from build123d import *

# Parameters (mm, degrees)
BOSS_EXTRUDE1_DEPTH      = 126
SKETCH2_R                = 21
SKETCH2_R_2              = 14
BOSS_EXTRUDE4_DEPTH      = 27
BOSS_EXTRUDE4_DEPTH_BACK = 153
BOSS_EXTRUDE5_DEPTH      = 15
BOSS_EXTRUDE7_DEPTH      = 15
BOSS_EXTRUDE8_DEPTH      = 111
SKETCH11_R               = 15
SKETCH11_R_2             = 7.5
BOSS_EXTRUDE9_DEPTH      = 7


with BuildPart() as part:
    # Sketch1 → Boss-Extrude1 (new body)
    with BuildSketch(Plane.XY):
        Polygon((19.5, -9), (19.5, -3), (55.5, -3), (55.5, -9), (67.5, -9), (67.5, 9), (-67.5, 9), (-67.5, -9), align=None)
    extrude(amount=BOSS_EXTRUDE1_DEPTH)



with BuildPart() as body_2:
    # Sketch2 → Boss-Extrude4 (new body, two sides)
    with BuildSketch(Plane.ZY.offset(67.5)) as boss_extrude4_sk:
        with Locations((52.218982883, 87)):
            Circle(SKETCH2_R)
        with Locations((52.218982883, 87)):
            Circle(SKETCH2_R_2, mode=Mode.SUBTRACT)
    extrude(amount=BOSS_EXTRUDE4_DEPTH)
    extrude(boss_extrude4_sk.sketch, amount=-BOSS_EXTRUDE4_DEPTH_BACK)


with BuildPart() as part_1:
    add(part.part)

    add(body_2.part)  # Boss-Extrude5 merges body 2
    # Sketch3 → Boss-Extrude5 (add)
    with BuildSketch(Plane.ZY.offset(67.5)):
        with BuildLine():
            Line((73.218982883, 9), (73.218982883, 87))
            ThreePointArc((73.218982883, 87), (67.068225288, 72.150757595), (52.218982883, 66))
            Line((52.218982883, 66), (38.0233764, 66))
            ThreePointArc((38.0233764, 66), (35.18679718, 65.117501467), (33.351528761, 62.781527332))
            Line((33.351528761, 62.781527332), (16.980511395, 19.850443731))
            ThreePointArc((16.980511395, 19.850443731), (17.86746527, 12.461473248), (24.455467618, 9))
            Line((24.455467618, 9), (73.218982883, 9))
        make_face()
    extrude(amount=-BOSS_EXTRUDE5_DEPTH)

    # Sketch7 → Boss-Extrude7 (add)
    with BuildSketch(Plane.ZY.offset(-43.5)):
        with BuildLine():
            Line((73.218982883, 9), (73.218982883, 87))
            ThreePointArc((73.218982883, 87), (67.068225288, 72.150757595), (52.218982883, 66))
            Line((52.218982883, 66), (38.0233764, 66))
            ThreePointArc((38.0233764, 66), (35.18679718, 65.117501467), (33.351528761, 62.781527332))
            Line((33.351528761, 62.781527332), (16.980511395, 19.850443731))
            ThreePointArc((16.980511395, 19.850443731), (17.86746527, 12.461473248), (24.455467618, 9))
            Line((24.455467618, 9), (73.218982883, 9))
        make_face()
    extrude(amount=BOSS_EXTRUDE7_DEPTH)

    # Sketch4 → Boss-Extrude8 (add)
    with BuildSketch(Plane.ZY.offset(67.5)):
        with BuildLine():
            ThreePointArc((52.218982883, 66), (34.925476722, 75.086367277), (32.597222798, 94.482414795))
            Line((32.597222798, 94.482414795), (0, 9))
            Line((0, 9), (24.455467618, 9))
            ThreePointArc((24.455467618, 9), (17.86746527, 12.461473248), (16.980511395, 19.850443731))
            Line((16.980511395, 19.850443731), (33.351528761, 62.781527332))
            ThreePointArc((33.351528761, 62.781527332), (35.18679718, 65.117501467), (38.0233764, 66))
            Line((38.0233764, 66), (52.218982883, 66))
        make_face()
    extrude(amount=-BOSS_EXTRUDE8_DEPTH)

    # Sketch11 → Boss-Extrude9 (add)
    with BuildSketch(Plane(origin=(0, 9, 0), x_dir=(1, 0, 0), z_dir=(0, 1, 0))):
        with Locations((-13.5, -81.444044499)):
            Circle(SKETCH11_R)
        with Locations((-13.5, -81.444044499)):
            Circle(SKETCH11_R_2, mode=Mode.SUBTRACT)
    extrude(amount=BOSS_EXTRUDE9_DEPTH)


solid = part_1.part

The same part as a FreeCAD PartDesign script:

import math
import FreeCAD as App
import Part
import Sketcher
Q = App.Units.Quantity


def add_polygon(sketch, points):
    """Adds a closed chain of lines whose ends are joined by coincident constraints."""
    first, n = sketch.GeometryCount, len(points)
    for a, b in zip(points, points[1:] + points[:1]):
        sketch.addGeometry(Part.LineSegment(App.Vector(*a, 0), App.Vector(*b, 0)), False)
    for i in range(n):
        sketch.addConstraint(Sketcher.Constraint("Coincident", first + i, 2, first + (i + 1) % n, 1))

doc = App.newDocument("Part")
body = doc.addObject("PartDesign::Body", "Body")

sketch1 = doc.addObject("Sketcher::SketchObject", "Sketch")
body.addObject(sketch1)
sketch1.AttachmentSupport = (doc.XY_Plane, [""])
sketch1.MapMode = "FlatFace"
add_polygon(sketch1, [(20, -9), (20, -3), (56, -3), (56, -9), (68, -9), (68, 9), (-68, 9), (-68, -9)])
sketch1.addConstraint([
    Sketcher.Constraint("Vertical", 0),
    Sketcher.Constraint("Horizontal", 1),
    Sketcher.Constraint("Vertical", 2),
    Sketcher.Constraint("Horizontal", 3),
    Sketcher.Constraint("Vertical", 4),
    Sketcher.Constraint("Horizontal", 5),
    Sketcher.Constraint("Vertical", 6),
    Sketcher.Constraint("Horizontal", 7),
    Sketcher.Constraint("Symmetric", 3, 2, 5, 2, -1, 1),
    Sketcher.Constraint("Horizontal", 3, 2, 6, 2),
    Sketcher.Constraint("DistanceX", 1, 1, 1, 2, Q("36 mm")),
    Sketcher.Constraint("DistanceX", 3, 1, 3, 2, Q("12 mm")),
    Sketcher.Constraint("DistanceX", 5, 2, 5, 1, Q("135 mm")),
    Sketcher.Constraint("DistanceY", 0, 1, 0, 2, Q("6 mm")),
    Sketcher.Constraint("DistanceY", 4, 1, 4, 2, Q("18 mm")),
])
pad1 = doc.addObject("PartDesign::Pad", "Pad")
body.addObject(pad1)
pad1.Profile = sketch1
pad1.Length = 126
body2 = doc.addObject("PartDesign::Body", "Body001")

sketch2 = doc.addObject("Sketcher::SketchObject", "Sketch001")
body2.addObject(sketch2)
sketch2.AttachmentSupport = (doc.getObject("YZ_Plane001"), [""])
sketch2.MapMode = "FlatFace"
sketch2.AttachmentOffset = App.Placement(App.Vector(0, 0, -67.5), App.Rotation())
sketch2.addGeometry([
    Part.Circle(App.Vector(87, 52, 0), App.Vector(0, 0, 1), 21),
    Part.Circle(App.Vector(87, 52, 0), App.Vector(0, 0, 1), 14),
], False)
sketch2.addConstraint([
    Sketcher.Constraint("Coincident", 1, 3, 0, 3),
    Sketcher.Constraint("Diameter", 0, Q("42 mm")),
    Sketcher.Constraint("Diameter", 1, Q("28 mm")),
    Sketcher.Constraint("DistanceX", -1, 1, 0, 3, Q("87 mm")),
    Sketcher.Constraint("DistanceY", -1, 1, 0, 3, Q("52.218983 mm")),
])
pad2 = doc.addObject("PartDesign::Pad", "Pad001")
body2.addObject(pad2)
pad2.Profile = sketch2
pad2.Type = "TwoLengths"
pad2.Length = 27
pad2.Length2 = 153
pad2.Reversed = True
body.AllowCompound = True
doc.recompute()

boolean = doc.addObject("PartDesign::Boolean", "Boolean")
body.addObject(boolean)
boolean.Type = "Fuse"
boolean.addObjects([body2])

sketch3 = doc.addObject("Sketcher::SketchObject", "Sketch002")
body.addObject(sketch3)
sketch3.AttachmentSupport = (doc.YZ_Plane, [""])
sketch3.MapMode = "FlatFace"
sketch3.AttachmentOffset = App.Placement(App.Vector(0, 0, -67.5), App.Rotation())
sketch3.addGeometry([
    Part.LineSegment(App.Vector(9, 73.2, 0), App.Vector(87, 73.2, 0)),
    Part.ArcOfCircle(Part.Circle(App.Vector(87, 52.2, 0), App.Vector(0, 0, 1), 21), math.radians(90), math.radians(180)),
    Part.LineSegment(App.Vector(66, 52.2, 0), App.Vector(66, 38, 0)),
    Part.ArcOfCircle(Part.Circle(App.Vector(61, 38, 0), App.Vector(0, 0, 1), 5), math.radians(-69), math.radians(0)),
    Part.LineSegment(App.Vector(62.8, 33.4, 0), App.Vector(19.9, 17, 0)),
    Part.ArcOfCircle(Part.Circle(App.Vector(17, 24.5, 0), App.Vector(0, 0, 1), 8), math.radians(180), math.radians(291)),
    Part.LineSegment(App.Vector(9, 24.5, 0), App.Vector(9, 73.2, 0)),
], False)
sketch3.addConstraint([
    Sketcher.Constraint("Tangent", 0, 2, 1, 1),
    Sketcher.Constraint("Tangent", 1, 2, 2, 1),
    Sketcher.Constraint("Tangent", 2, 2, 3, 2),
    Sketcher.Constraint("Tangent", 3, 1, 4, 1),
    Sketcher.Constraint("Tangent", 4, 2, 5, 2),
    Sketcher.Constraint("Tangent", 5, 1, 6, 1),
    Sketcher.Constraint("Coincident", 6, 2, 0, 1),
    Sketcher.Constraint("Horizontal", 0),
    Sketcher.Constraint("Vertical", 2),
    Sketcher.Constraint("Vertical", 6),
    Sketcher.Constraint("Radius", 1, Q("21 mm")),
    Sketcher.Constraint("Radius", 3, Q("5 mm")),
    Sketcher.Constraint("Radius", 5, Q("8 mm")),
    Sketcher.Constraint("DistanceX", 0, 1, 0, 2, Q("78 mm")),
    Sketcher.Constraint("DistanceX", -1, 1, 1, 3, Q("87 mm")),
    Sketcher.Constraint("Distance", 4, Q("45.946579 mm")),
    Sketcher.Constraint("DistanceY", 2, 2, 2, 1, Q("14.195606 mm")),
    Sketcher.Constraint("DistanceY", -1, 1, 3, 1, Q("33.351529 mm")),
])
pad3 = doc.addObject("PartDesign::Pad", "Pad002")
body.addObject(pad3)
pad3.Profile = sketch3
pad3.Length = 15

sketch4 = doc.addObject("Sketcher::SketchObject", "Sketch003")
body.addObject(sketch4)
sketch4.AttachmentSupport = (doc.YZ_Plane, [""])
sketch4.MapMode = "FlatFace"
sketch4.AttachmentOffset = App.Placement(App.Vector(0, 0, 43.5), App.Rotation())
sketch4.addGeometry([
    Part.LineSegment(App.Vector(9, 73.2, 0), App.Vector(87, 73.2, 0)),
    Part.ArcOfCircle(Part.Circle(App.Vector(87, 52.2, 0), App.Vector(0, 0, 1), 21), math.radians(90), math.radians(180)),
    Part.LineSegment(App.Vector(66, 52.2, 0), App.Vector(66, 38, 0)),
    Part.ArcOfCircle(Part.Circle(App.Vector(61, 38, 0), App.Vector(0, 0, 1), 5), math.radians(-69), math.radians(0)),
    Part.LineSegment(App.Vector(62.8, 33.4, 0), App.Vector(19.9, 17, 0)),
    Part.ArcOfCircle(Part.Circle(App.Vector(17, 24.5, 0), App.Vector(0, 0, 1), 8), math.radians(180), math.radians(291)),
    Part.LineSegment(App.Vector(9, 24.5, 0), App.Vector(9, 73.2, 0)),
], False)
sketch4.addConstraint([
    Sketcher.Constraint("Tangent", 0, 2, 1, 1),
    Sketcher.Constraint("Tangent", 1, 2, 2, 1),
    Sketcher.Constraint("Tangent", 2, 2, 3, 2),
    Sketcher.Constraint("Tangent", 3, 1, 4, 1),
    Sketcher.Constraint("Tangent", 4, 2, 5, 2),
    Sketcher.Constraint("Tangent", 5, 1, 6, 1),
    Sketcher.Constraint("Coincident", 6, 2, 0, 1),
    Sketcher.Constraint("Horizontal", 0),
    Sketcher.Constraint("Vertical", 2),
    Sketcher.Constraint("Vertical", 6),
    Sketcher.Constraint("Radius", 1, Q("21 mm")),
    Sketcher.Constraint("Radius", 3, Q("5 mm")),
    Sketcher.Constraint("Radius", 5, Q("8 mm")),
    Sketcher.Constraint("DistanceX", 0, 1, 0, 2, Q("78 mm")),
    Sketcher.Constraint("DistanceX", -1, 1, 1, 3, Q("87 mm")),
    Sketcher.Constraint("Distance", 4, Q("45.946579 mm")),
    Sketcher.Constraint("DistanceY", 2, 2, 2, 1, Q("14.195606 mm")),
    Sketcher.Constraint("DistanceY", -1, 1, 3, 1, Q("33.351529 mm")),
])
pad4 = doc.addObject("PartDesign::Pad", "Pad003")
body.addObject(pad4)
pad4.Profile = sketch4
pad4.Length = 15
pad4.Reversed = True

sketch5 = doc.addObject("Sketcher::SketchObject", "Sketch004")
body.addObject(sketch5)
sketch5.AttachmentSupport = (doc.YZ_Plane, [""])
sketch5.MapMode = "FlatFace"
sketch5.AttachmentOffset = App.Placement(App.Vector(0, 0, -67.5), App.Rotation())
sketch5.addGeometry([
    Part.ArcOfCircle(Part.Circle(App.Vector(87, 52.2, 0), App.Vector(0, 0, 1), 21), math.radians(180), math.radians(291)),
    Part.LineSegment(App.Vector(94.5, 32.6, 0), App.Vector(9, 0, 0)),
    Part.LineSegment(App.Vector(9, 0, 0), App.Vector(9, 24.5, 0)),
    Part.ArcOfCircle(Part.Circle(App.Vector(17, 24.5, 0), App.Vector(0, 0, 1), 8), math.radians(180), math.radians(291)),
    Part.LineSegment(App.Vector(19.9, 17, 0), App.Vector(62.8, 33.4, 0)),
    Part.ArcOfCircle(Part.Circle(App.Vector(61, 38, 0), App.Vector(0, 0, 1), 5), math.radians(-69), math.radians(0)),
    Part.LineSegment(App.Vector(66, 38, 0), App.Vector(66, 52.2, 0)),
], False)
sketch5.addConstraint([
    Sketcher.Constraint("Tangent", 0, 2, 1, 1),
    Sketcher.Constraint("Coincident", 1, 2, 2, 1),
    Sketcher.Constraint("Tangent", 2, 2, 3, 1),
    Sketcher.Constraint("Tangent", 3, 2, 4, 1),
    Sketcher.Constraint("Tangent", 4, 2, 5, 1),
    Sketcher.Constraint("Tangent", 5, 2, 6, 1),
    Sketcher.Constraint("Tangent", 6, 2, 0, 1),
    Sketcher.Constraint("Vertical", 2),
    Sketcher.Constraint("Vertical", 6),
    Sketcher.Constraint("PointOnObject", 1, 2, -1),
    Sketcher.Constraint("Parallel", 1, 4),
    Sketcher.Constraint("Radius", 0, Q("21 mm")),
    Sketcher.Constraint("Radius", 3, Q("8 mm")),
    Sketcher.Constraint("Radius", 5, Q("5 mm")),
    Sketcher.Constraint("DistanceX", -1, 1, 0, 3, Q("87 mm")),
    Sketcher.Constraint("DistanceX", -1, 1, 3, 3, Q("17 mm")),
    Sketcher.Constraint("Distance", 4, Q("45.946579 mm")),
    Sketcher.Constraint("DistanceY", 2, 1, 2, 2, Q("24.455468 mm")),
])
pad5 = doc.addObject("PartDesign::Pad", "Pad004")
body.addObject(pad5)
pad5.Profile = sketch5
pad5.Length = 111

sketch6 = doc.addObject("Sketcher::SketchObject", "Sketch005")
body.addObject(sketch6)
sketch6.AttachmentSupport = (doc.XZ_Plane, [""])
sketch6.MapMode = "FlatFace"
sketch6.AttachmentOffset = App.Placement(App.Vector(0, 0, -9), App.Rotation())
sketch6.addGeometry([
    Part.Circle(App.Vector(-14, 81, 0), App.Vector(0, 0, 1), 15),
    Part.Circle(App.Vector(-14, 81, 0), App.Vector(0, 0, 1), 8),
], False)
sketch6.addConstraint([
    Sketcher.Constraint("Coincident", 1, 3, 0, 3),
    Sketcher.Constraint("Diameter", 0, Q("30 mm")),
    Sketcher.Constraint("Diameter", 1, Q("15 mm")),
    Sketcher.Constraint("DistanceX", 0, 3, -1, 1, Q("13.5 mm")),
    Sketcher.Constraint("DistanceY", -1, 1, 0, 3, Q("81.444044 mm")),
])
pad6 = doc.addObject("PartDesign::Pad", "Pad005")
body.addObject(pad6)
pad6.Profile = sketch6
pad6.Length = 7
pad6.Reversed = True

doc.recompute()
